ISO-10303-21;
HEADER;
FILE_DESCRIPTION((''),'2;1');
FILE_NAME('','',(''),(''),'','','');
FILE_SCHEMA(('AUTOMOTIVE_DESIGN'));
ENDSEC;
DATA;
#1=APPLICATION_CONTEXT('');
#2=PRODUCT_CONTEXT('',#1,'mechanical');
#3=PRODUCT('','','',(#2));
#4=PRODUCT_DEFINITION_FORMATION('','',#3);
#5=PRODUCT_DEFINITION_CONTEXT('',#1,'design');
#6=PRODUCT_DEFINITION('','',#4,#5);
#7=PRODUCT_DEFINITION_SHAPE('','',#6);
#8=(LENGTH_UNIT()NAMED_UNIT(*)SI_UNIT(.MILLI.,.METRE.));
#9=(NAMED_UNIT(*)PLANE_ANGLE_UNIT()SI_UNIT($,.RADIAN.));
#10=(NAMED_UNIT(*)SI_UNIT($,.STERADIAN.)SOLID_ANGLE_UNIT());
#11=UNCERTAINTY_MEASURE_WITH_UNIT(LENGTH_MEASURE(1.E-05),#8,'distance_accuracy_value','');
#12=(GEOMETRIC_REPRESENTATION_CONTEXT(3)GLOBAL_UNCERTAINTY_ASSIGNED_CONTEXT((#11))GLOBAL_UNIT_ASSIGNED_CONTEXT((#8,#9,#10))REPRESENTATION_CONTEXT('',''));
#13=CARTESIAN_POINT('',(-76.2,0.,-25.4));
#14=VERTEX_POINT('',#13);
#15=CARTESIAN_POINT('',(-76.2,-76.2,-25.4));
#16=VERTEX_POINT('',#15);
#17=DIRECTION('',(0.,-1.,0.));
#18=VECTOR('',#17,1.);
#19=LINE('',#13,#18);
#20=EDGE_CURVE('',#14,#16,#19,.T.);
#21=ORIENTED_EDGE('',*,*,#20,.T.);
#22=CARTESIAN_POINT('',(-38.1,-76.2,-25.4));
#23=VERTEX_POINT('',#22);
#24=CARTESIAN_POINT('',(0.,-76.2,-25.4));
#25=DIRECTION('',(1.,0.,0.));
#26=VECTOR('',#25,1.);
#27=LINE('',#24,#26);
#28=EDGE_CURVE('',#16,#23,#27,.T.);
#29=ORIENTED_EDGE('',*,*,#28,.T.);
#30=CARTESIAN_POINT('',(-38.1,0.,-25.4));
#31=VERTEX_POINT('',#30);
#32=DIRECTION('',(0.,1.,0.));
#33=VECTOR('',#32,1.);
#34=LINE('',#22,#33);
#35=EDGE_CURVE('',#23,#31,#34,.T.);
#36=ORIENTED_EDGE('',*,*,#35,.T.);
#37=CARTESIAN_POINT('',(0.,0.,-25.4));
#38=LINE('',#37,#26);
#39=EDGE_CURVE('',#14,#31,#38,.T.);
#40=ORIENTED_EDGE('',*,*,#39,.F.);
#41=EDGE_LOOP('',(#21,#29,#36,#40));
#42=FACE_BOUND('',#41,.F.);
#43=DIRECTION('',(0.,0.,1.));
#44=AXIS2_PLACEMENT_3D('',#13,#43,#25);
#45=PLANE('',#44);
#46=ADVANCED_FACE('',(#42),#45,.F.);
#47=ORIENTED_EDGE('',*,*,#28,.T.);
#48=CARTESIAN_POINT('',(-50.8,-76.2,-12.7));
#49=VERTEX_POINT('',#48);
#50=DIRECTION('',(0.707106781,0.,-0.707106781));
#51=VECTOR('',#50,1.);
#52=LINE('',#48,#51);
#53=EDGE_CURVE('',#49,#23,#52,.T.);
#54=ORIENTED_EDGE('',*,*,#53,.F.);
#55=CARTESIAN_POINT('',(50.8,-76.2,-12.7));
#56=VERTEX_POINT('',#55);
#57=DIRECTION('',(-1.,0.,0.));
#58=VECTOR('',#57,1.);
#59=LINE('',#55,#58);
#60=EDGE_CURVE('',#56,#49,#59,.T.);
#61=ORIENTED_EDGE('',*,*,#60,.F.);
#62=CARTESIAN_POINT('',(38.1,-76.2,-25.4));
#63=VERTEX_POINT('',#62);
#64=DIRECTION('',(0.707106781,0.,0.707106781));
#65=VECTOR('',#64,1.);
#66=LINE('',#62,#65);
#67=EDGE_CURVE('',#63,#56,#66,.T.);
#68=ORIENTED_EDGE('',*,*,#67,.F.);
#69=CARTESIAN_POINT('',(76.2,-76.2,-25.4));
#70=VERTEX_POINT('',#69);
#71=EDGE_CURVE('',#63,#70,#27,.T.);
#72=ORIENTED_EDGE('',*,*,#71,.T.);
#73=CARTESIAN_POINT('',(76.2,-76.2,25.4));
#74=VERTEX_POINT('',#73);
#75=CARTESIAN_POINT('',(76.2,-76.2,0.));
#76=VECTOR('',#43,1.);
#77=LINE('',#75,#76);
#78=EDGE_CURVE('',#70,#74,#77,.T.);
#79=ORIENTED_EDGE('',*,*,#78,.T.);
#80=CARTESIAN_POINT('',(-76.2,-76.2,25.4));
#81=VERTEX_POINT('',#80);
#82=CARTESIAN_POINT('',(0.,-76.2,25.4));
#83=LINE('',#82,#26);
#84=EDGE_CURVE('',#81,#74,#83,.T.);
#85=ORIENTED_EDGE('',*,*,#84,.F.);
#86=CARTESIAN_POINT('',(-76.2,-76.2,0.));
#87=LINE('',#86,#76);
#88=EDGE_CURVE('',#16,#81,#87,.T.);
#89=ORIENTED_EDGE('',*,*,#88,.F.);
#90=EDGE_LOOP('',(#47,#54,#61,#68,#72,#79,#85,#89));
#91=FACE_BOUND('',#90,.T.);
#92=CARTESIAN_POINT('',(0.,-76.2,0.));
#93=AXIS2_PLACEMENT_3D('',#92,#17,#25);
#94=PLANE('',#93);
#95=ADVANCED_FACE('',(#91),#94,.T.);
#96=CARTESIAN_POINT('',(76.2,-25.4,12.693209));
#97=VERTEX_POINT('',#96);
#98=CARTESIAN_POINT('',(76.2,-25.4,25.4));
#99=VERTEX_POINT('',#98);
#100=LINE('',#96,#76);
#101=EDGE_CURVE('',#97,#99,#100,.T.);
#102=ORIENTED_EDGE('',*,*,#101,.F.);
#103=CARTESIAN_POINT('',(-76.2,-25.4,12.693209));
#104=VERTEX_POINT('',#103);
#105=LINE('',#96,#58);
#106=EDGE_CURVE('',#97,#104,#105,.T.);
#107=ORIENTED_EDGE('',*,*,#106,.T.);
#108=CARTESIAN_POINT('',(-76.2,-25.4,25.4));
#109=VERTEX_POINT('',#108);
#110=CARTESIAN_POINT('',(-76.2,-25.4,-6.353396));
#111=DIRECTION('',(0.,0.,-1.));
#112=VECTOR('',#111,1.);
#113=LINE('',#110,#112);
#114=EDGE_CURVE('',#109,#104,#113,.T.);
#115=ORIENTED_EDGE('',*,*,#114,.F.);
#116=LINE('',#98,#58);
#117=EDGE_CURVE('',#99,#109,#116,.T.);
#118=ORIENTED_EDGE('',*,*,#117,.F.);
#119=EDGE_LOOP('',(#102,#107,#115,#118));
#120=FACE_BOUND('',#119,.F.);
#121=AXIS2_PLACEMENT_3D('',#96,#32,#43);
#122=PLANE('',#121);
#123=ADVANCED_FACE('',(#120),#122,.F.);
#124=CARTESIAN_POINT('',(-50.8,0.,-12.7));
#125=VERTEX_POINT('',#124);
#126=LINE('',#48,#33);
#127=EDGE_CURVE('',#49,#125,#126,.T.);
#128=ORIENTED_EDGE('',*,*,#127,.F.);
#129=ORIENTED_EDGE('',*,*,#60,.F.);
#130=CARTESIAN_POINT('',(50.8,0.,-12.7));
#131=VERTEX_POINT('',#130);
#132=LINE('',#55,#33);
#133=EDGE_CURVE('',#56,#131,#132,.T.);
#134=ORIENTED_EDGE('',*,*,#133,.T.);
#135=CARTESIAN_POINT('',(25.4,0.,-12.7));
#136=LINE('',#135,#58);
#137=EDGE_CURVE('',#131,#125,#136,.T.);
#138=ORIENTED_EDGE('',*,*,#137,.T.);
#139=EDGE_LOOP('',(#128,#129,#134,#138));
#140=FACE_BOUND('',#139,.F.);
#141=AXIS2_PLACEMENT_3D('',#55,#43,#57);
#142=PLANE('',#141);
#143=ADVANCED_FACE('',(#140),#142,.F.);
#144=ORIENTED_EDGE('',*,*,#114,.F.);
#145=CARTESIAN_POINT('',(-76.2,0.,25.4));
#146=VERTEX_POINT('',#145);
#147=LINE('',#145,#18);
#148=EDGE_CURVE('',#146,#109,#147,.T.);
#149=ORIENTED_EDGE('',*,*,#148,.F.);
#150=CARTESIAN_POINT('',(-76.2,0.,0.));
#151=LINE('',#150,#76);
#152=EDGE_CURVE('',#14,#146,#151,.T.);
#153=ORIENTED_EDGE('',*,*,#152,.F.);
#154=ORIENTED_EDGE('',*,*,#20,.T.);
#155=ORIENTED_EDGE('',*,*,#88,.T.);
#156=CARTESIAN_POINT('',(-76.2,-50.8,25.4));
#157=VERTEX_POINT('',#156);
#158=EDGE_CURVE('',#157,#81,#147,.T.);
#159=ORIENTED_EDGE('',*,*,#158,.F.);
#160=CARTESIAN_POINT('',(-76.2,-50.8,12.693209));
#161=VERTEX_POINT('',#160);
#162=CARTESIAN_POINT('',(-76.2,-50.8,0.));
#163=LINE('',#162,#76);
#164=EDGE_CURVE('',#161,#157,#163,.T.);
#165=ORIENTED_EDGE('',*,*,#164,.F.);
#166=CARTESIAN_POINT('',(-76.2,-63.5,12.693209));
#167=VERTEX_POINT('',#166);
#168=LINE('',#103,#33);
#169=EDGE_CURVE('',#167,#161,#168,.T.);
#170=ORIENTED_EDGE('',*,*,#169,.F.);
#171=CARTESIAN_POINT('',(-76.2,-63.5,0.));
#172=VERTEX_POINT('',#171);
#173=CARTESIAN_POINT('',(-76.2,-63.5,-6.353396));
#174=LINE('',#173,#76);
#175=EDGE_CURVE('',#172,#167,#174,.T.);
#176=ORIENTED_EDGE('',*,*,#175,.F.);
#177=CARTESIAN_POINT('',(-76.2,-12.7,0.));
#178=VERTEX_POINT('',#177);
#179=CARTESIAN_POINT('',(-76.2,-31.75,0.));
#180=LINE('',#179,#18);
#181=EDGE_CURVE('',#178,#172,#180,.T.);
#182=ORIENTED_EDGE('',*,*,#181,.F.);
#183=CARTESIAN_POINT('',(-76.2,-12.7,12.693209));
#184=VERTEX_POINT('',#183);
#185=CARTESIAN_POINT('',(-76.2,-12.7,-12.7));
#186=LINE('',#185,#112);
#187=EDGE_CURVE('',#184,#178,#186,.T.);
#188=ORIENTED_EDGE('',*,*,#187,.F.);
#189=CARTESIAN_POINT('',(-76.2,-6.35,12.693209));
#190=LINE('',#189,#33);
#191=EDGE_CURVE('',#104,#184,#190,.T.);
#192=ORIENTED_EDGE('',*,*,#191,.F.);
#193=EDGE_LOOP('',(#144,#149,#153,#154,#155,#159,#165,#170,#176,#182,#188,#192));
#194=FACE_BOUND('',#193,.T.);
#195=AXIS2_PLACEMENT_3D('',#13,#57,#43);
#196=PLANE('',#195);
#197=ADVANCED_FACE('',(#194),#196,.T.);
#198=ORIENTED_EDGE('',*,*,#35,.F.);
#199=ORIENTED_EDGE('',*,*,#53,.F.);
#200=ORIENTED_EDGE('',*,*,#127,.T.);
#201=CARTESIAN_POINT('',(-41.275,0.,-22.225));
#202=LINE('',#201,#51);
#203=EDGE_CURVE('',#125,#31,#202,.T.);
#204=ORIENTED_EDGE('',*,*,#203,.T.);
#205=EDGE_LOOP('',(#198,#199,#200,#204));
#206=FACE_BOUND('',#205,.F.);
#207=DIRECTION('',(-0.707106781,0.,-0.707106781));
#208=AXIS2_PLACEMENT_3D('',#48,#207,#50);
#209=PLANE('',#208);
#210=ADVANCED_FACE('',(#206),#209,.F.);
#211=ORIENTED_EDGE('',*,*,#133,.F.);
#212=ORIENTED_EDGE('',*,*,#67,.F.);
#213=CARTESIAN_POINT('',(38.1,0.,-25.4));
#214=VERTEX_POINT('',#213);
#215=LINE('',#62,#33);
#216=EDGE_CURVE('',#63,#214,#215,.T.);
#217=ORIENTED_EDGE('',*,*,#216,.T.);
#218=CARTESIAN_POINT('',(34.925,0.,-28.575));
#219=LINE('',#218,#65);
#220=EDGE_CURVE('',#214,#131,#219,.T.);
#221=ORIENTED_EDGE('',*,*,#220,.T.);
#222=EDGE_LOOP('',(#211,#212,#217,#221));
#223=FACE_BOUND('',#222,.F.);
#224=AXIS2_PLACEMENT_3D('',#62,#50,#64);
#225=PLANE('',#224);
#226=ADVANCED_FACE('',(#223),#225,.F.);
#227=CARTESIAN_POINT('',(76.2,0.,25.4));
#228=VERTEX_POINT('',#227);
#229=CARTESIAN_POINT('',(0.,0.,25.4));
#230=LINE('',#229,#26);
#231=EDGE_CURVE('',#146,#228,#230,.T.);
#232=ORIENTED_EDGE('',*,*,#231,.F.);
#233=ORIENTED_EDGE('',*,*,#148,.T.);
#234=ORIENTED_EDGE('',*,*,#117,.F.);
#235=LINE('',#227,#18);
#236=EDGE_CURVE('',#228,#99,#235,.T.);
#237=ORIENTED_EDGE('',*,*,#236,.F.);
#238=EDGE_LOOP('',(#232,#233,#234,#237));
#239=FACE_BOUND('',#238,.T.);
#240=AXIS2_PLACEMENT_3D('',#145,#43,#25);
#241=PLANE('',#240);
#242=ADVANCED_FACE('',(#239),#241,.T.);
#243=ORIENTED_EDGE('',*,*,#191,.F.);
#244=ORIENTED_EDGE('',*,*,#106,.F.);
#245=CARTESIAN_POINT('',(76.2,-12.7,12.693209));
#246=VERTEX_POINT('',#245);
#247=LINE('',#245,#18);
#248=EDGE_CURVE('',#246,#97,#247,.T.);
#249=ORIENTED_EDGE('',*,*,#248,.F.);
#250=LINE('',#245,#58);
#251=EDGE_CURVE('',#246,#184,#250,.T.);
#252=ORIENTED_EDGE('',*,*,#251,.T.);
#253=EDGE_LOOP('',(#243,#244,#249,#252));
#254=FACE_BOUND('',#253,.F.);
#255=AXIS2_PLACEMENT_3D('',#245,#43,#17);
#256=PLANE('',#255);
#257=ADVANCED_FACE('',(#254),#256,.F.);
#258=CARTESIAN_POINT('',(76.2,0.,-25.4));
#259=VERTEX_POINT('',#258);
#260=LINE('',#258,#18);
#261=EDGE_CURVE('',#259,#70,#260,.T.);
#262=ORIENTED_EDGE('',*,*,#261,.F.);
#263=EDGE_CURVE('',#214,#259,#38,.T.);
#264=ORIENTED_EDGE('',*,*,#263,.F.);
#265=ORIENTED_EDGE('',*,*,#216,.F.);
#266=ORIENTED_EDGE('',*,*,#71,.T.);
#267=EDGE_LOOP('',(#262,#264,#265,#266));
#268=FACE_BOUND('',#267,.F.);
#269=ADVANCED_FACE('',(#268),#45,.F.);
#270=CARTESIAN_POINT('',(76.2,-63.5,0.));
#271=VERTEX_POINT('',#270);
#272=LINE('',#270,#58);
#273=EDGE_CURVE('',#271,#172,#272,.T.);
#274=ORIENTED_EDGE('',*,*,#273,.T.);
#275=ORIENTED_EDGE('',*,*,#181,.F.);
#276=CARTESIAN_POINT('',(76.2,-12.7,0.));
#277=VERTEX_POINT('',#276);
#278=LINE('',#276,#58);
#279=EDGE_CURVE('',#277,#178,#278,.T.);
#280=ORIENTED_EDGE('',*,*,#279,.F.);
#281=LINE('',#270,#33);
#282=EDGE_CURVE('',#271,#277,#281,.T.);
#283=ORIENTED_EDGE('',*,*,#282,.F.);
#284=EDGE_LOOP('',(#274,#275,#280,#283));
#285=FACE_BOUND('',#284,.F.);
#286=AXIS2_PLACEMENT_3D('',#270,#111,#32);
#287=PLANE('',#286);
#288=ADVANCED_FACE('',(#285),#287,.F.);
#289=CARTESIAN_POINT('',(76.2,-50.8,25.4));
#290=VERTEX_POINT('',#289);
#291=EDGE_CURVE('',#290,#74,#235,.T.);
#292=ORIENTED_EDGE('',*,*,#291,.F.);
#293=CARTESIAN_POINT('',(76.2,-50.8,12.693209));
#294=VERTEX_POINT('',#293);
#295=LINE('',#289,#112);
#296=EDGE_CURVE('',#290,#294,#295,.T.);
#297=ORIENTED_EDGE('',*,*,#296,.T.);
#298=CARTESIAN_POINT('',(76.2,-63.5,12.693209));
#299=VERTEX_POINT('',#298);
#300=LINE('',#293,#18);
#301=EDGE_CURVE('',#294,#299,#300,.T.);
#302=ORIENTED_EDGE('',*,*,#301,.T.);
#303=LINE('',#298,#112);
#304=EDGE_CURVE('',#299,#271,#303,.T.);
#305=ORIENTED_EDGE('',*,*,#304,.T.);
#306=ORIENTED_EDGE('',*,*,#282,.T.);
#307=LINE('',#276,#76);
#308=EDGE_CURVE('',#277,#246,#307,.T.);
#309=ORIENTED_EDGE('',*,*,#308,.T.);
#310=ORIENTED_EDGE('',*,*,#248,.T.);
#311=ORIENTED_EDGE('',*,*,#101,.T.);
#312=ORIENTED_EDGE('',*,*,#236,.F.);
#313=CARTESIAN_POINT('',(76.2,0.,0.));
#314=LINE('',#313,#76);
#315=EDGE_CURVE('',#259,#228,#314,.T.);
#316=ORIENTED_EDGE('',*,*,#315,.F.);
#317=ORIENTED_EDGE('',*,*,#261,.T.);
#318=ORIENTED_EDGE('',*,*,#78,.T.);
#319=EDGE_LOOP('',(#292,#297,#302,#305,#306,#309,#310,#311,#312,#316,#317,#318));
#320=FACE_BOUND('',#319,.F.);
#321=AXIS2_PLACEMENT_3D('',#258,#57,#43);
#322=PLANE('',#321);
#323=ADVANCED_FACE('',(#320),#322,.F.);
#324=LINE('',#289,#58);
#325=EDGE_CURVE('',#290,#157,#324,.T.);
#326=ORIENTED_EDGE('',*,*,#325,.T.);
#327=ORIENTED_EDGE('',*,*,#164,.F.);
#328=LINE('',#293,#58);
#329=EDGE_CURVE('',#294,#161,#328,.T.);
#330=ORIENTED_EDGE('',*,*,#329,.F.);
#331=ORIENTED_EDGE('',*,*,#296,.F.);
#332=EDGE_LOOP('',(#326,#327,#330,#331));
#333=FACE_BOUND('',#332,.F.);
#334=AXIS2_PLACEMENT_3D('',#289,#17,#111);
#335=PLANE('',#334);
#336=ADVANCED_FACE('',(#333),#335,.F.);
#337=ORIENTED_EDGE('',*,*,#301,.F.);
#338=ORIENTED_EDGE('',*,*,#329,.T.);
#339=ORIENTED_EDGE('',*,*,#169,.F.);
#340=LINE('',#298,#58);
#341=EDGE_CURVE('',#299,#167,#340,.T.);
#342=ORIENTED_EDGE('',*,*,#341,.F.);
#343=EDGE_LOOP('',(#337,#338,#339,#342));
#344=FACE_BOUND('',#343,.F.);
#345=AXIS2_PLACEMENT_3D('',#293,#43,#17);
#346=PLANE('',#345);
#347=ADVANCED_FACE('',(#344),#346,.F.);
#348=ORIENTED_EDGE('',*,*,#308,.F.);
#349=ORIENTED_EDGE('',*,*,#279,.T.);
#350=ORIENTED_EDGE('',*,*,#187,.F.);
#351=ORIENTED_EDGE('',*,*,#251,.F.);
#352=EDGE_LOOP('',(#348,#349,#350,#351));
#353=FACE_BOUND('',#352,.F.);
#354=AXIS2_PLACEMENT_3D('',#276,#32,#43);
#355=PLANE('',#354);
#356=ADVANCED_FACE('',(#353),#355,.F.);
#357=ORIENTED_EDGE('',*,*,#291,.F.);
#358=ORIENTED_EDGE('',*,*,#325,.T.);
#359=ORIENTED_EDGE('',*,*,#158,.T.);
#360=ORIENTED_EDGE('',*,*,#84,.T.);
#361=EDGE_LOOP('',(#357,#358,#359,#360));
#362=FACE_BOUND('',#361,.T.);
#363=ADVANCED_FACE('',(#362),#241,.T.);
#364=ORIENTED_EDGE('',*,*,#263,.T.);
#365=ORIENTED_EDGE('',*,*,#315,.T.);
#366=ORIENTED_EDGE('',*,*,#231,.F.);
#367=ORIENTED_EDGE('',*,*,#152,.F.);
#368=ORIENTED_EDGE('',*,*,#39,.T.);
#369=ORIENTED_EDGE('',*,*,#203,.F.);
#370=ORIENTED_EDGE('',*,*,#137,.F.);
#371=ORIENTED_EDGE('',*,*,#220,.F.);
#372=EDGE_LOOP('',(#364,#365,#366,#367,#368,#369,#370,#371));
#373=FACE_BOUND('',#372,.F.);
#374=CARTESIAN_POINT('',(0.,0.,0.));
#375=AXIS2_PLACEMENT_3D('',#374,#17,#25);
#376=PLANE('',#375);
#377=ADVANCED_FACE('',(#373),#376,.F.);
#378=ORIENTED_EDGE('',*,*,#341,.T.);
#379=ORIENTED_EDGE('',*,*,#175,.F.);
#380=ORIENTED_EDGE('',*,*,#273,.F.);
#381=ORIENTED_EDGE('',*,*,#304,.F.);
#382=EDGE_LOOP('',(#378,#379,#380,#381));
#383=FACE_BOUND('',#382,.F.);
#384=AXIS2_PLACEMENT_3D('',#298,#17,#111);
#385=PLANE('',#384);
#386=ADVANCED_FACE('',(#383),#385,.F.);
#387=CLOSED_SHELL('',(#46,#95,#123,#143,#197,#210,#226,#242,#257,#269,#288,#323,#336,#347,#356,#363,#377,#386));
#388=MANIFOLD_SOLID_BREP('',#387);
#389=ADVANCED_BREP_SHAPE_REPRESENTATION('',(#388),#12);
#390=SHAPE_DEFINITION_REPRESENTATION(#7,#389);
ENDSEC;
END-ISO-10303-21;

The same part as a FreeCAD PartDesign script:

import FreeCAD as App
import Part
import Sketcher
Q = App.Units.Quantity


def add_polygon(sketch, points):
    """Adds a closed chain of lines whose ends are joined by coincident constraints."""
    first, n = sketch.GeometryCount, len(points)
    for a, b in zip(points, points[1:] + points[:1]):
        sketch.addGeometry(Part.LineSegment(App.Vector(*a, 0), App.Vector(*b, 0)), False)
    for i in range(n):
        sketch.addConstraint(Sketcher.Constraint("Coincident", first + i, 2, first + (i + 1) % n, 1))

doc = App.newDocument("Part")
body = doc.addObject("PartDesign::Body", "Body")

sketch1 = body.newObject("Sketcher::SketchObject", "Sketch")
sketch1.AttachmentSupport = (doc.getObject("XZ_Plane"), [""])
sketch1.MapMode = "FlatFace"
add_polygon(sketch1, [(-76, 25), (-76, -25), (76, -25), (76, 25)])
sketch1.addConstraint(Sketcher.Constraint("Vertical", 0))
sketch1.addConstraint(Sketcher.Constraint("Horizontal", 1))
sketch1.addConstraint(Sketcher.Constraint("Vertical", 2))
sketch1.addConstraint(Sketcher.Constraint("Horizontal", 3))
sketch1.addConstraint(Sketcher.Constraint("Symmetric", 0, 2, 2, 2, -1, 1))
sketch1.addConstraint(Sketcher.Constraint("DistanceX", 1, 1, 1, 2, Q("6 in")))
sketch1.addConstraint(Sketcher.Constraint("DistanceY", 0, 2, 0, 1, Q("2 in")))
pad1 = body.newObject("PartDesign::Pad", "Pad")
pad1.Profile = sketch1
pad1.Length = Q("3 in")

sketch2 = body.newObject("Sketcher::SketchObject", "Sketch001")
sketch2.AttachmentSupport = (doc.getObject("YZ_Plane"), [""])
sketch2.MapMode = "FlatFace"
sketch2.AttachmentOffset = App.Placement(App.Vector(0, 0, 3 * 25.4), App.Rotation())
add_polygon(sketch2, [(-25, 13), (-25, 25), (-51, 25), (-51, 13), (-64, 13), (-64, 0), (-13, 0), (-13, 13)])
sketch2.addConstraint(Sketcher.Constraint("Vertical", 0))
sketch2.addConstraint(Sketcher.Constraint("Horizontal", 1))
sketch2.addConstraint(Sketcher.Constraint("Vertical", 2))
sketch2.addConstraint(Sketcher.Constraint("Horizontal", 3))
sketch2.addConstraint(Sketcher.Constraint("Vertical", 4))
sketch2.addConstraint(Sketcher.Constraint("Horizontal", 5))
sketch2.addConstraint(Sketcher.Constraint("Vertical", 6))
sketch2.addConstraint(Sketcher.Constraint("Horizontal", 7))
sketch2.addConstraint(Sketcher.Constraint("PointOnObject", 4, 2, -1))
sketch2.addConstraint(Sketcher.Constraint("Horizontal", 3, 2, 6, 2))
sketch2.addConstraint(Sketcher.Constraint("Equal", 3, 7))
sketch2.addConstraint(Sketcher.Constraint("DistanceX", 1, 2, 1, 1, Q("1 in")))
sketch2.addConstraint(Sketcher.Constraint("DistanceX", 5, 1, 5, 2, Q("2 in")))
sketch2.addConstraint(Sketcher.Constraint("DistanceX", 0, 2, -1, 1, Q("1 in")))
sketch2.addConstraint(Sketcher.Constraint("DistanceY", -1, 1, 0, 2, Q("1 in")))
sketch2.addConstraint(Sketcher.Constraint("DistanceY", 0, 1, 0, 2, 12.706791))
pocket1 = body.newObject("PartDesign::Pocket", "Pocket")
pocket1.Profile = sketch2
pocket1.Type = "ThroughAll"

sketch3 = body.newObject("Sketcher::SketchObject", "Sketch002")
sketch3.AttachmentSupport = (doc.getObject("XZ_Plane"), [""])
sketch3.MapMode = "FlatFace"
sketch3.AttachmentOffset = App.Placement(App.Vector(0, 0, 3 * 25.4), App.Rotation())
add_polygon(sketch3, [(51, -13), (-51, -13), (-38, -25), (38, -25)])
sketch3.addConstraint(Sketcher.Constraint("Horizontal", 0))
sketch3.addConstraint(Sketcher.Constraint("Horizontal", 2))
sketch3.addConstraint(Sketcher.Constraint("Perpendicular", 1, 3))
sketch3.addConstraint(Sketcher.Constraint("Equal", 1, 3))
sketch3.addConstraint(Sketcher.Constraint("DistanceX", 0, 2, 0, 1, Q("4 in")))
sketch3.addConstraint(Sketcher.Constraint("DistanceX", 2, 1, 2, 2, Q("3 in")))
sketch3.addConstraint(Sketcher.Constraint("DistanceX", 0, 2, -1, 1, Q("2 in")))
sketch3.addConstraint(Sketcher.Constraint("DistanceY", 1, 2, -1, 1, Q("1 in")))
pocket2 = body.newObject("PartDesign::Pocket", "Pocket001")
pocket2.Profile = sketch3
pocket2.Type = "ThroughAll"

doc.recompute()
